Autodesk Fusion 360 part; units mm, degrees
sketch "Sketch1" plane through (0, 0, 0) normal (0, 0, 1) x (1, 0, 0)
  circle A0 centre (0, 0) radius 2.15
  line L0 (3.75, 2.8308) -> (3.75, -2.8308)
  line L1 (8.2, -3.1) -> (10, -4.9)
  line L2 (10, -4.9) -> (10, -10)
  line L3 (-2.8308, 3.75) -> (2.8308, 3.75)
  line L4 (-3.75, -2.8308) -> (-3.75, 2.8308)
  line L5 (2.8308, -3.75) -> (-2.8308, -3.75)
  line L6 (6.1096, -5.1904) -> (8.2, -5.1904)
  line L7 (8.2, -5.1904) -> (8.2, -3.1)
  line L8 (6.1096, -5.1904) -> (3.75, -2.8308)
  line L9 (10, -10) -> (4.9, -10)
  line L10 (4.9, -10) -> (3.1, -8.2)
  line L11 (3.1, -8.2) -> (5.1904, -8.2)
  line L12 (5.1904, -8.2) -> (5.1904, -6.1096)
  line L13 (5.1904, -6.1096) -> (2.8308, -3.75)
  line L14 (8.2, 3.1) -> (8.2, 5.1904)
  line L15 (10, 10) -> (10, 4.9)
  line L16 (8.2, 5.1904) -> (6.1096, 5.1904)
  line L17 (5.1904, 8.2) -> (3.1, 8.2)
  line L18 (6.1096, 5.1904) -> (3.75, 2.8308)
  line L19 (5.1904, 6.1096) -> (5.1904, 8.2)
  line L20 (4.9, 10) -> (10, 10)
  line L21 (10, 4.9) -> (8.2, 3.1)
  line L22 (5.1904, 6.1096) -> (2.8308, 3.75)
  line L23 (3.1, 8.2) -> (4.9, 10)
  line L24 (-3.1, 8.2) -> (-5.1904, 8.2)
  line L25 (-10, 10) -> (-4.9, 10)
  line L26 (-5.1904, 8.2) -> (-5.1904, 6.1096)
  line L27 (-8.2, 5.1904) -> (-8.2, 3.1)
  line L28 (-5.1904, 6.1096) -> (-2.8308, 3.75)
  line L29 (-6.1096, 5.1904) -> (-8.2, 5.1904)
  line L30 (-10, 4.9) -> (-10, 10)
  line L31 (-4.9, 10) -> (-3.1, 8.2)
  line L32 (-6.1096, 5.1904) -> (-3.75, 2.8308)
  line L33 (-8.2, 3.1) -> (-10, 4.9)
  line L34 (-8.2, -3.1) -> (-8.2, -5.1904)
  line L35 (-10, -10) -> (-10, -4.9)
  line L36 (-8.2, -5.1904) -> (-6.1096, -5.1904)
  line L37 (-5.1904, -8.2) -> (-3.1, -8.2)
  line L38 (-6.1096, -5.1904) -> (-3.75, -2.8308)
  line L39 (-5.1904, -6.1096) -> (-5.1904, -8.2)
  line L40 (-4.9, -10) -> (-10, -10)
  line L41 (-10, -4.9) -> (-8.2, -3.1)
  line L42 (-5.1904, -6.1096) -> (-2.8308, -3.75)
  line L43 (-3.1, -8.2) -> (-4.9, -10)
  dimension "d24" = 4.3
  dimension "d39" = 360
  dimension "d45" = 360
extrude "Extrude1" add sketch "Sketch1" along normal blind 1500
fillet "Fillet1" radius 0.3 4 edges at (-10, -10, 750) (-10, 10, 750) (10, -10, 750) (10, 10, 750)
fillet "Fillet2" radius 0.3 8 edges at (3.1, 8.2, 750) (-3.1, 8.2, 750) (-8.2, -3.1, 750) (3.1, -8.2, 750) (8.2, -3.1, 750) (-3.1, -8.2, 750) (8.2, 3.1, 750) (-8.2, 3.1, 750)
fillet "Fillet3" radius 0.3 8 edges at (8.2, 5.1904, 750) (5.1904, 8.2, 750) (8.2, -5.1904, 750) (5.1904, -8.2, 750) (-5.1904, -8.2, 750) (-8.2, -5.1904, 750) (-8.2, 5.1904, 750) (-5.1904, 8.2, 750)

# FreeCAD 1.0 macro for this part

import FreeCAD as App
import Part
import Sketcher

V = App.Vector


def edges_at(feature, points):
    """Names of the edges that pass closest to the given points."""
    edges = feature.Shape.Edges
    near = lambda p: min(range(len(edges)), key=lambda i: edges[i].distToShape(Part.Vertex(*p))[0])
    return sorted({f"Edge{near(p) + 1}" for p in points})

doc = App.newDocument("Part")
body = doc.addObject("PartDesign::Body", "Body")

# Sketch on XY plane
sketch1 = body.newObject("Sketcher::SketchObject", "Sketch")
sketch1.AttachmentSupport = (doc.getObject("XY_Plane"), [""])
sketch1.MapMode = "FlatFace"
sketch1.addGeometry([
    Part.LineSegment(V(3.8, -2.8, 0), V(3.8, 2.8, 0)),  # 0
    Part.LineSegment(V(3.8, 2.8, 0), V(6.1, 5.2, 0)),  # 1
    Part.LineSegment(V(6.1, 5.2, 0), V(8.2, 5.2, 0)),  # 2
    Part.LineSegment(V(8.2, 5.2, 0), V(8.2, 3.1, 0)),  # 3
    Part.LineSegment(V(8.2, 3.1, 0), V(10, 4.9, 0)),  # 4
    Part.LineSegment(V(10, 4.9, 0), V(10, 10, 0)),  # 5
    Part.LineSegment(V(10, 10, 0), V(4.9, 10, 0)),  # 6
    Part.LineSegment(V(4.9, 10, 0), V(3.1, 8.2, 0)),  # 7
    Part.LineSegment(V(3.1, 8.2, 0), V(5.2, 8.2, 0)),  # 8
    Part.LineSegment(V(5.2, 8.2, 0), V(5.2, 6.1, 0)),  # 9
    Part.LineSegment(V(5.2, 6.1, 0), V(2.8, 3.8, 0)),  # 10
    Part.LineSegment(V(2.8, 3.8, 0), V(-2.8, 3.8, 0)),  # 11
    Part.LineSegment(V(-2.8, 3.8, 0), V(-5.2, 6.1, 0)),  # 12
    Part.LineSegment(V(-5.2, 6.1, 0), V(-5.2, 8.2, 0)),  # 13
    Part.LineSegment(V(-5.2, 8.2, 0), V(-3.1, 8.2, 0)),  # 14
    Part.LineSegment(V(-3.1, 8.2, 0), V(-4.9, 10, 0)),  # 15
    Part.LineSegment(V(-4.9, 10, 0), V(-10, 10, 0)),  # 16
    Part.LineSegment(V(-10, 10, 0), V(-10, 4.9, 0)),  # 17
    Part.LineSegment(V(-10, 4.9, 0), V(-8.2, 3.1, 0)),  # 18
    Part.LineSegment(V(-8.2, 3.1, 0), V(-8.2, 5.2, 0)),  # 19
    Part.LineSegment(V(-8.2, 5.2, 0), V(-6.1, 5.2, 0)),  # 20
    Part.LineSegment(V(-6.1, 5.2, 0), V(-3.8, 2.8, 0)),  # 21
    Part.LineSegment(V(-3.8, 2.8, 0), V(-3.8, -2.8, 0)),  # 22
    Part.LineSegment(V(-3.8, -2.8, 0), V(-6.1, -5.2, 0)),  # 23
    Part.LineSegment(V(-6.1, -5.2, 0), V(-8.2, -5.2, 0)),  # 24
    Part.LineSegment(V(-8.2, -5.2, 0), V(-8.2, -3.1, 0)),  # 25
    Part.LineSegment(V(-8.2, -3.1, 0), V(-10, -4.9, 0)),  # 26
    Part.LineSegment(V(-10, -4.9, 0), V(-10, -10, 0)),  # 27
    Part.LineSegment(V(-10, -10, 0), V(-4.9, -10, 0)),  # 28
    Part.LineSegment(V(-4.9, -10, 0), V(-3.1, -8.2, 0)),  # 29
    Part.LineSegment(V(-3.1, -8.2, 0), V(-5.2, -8.2, 0)),  # 30
    Part.LineSegment(V(-5.2, -8.2, 0), V(-5.2, -6.1, 0)),  # 31
    Part.LineSegment(V(-5.2, -6.1, 0), V(-2.8, -3.8, 0)),  # 32
    Part.LineSegment(V(-2.8, -3.8, 0), V(2.8, -3.8, 0)),  # 33
    Part.LineSegment(V(2.8, -3.8, 0), V(5.2, -6.1, 0)),  # 34
    Part.LineSegment(V(5.2, -6.1, 0), V(5.2, -8.2, 0)),  # 35
    Part.LineSegment(V(5.2, -8.2, 0), V(3.1, -8.2, 0)),  # 36
    Part.LineSegment(V(3.1, -8.2, 0), V(4.9, -10, 0)),  # 37
    Part.LineSegment(V(4.9, -10, 0), V(10, -10, 0)),  # 38
    Part.LineSegment(V(10, -10, 0), V(10, -4.9, 0)),  # 39
    Part.LineSegment(V(10, -4.9, 0), V(8.2, -3.1, 0)),  # 40
    Part.LineSegment(V(8.2, -3.1, 0), V(8.2, -5.2, 0)),  # 41
    Part.LineSegment(V(8.2, -5.2, 0), V(6.1, -5.2, 0)),  # 42
    Part.LineSegment(V(6.1, -5.2, 0), V(3.8, -2.8, 0)),  # 43
    Part.Circle(V(0, 0, 0), V(0, 0, 1), 2.1),  # 44
], False)
sketch1.addConstraint([
    Sketcher.Constraint("Coincident", 0, 2, 1, 1),
    Sketcher.Constraint("Coincident", 1, 2, 2, 1),
    Sketcher.Constraint("Coincident", 2, 2, 3, 1),
    Sketcher.Constraint("Coincident", 3, 2, 4, 1),
    Sketcher.Constraint("Coincident", 4, 2, 5, 1),
    Sketcher.Constraint("Coincident", 5, 2, 6, 1),
    Sketcher.Constraint("Coincident", 6, 2, 7, 1),
    Sketcher.Constraint("Coincident", 7, 2, 8, 1),
    Sketcher.Constraint("Coincident", 8, 2, 9, 1),
    Sketcher.Constraint("Coincident", 9, 2, 10, 1),
    Sketcher.Constraint("Coincident", 10, 2, 11, 1),
    Sketcher.Constraint("Coincident", 11, 2, 12, 1),
    Sketcher.Constraint("Coincident", 12, 2, 13, 1),
    Sketcher.Constraint("Coincident", 13, 2, 14, 1),
    Sketcher.Constraint("Coincident", 14, 2, 15, 1),
    Sketcher.Constraint("Coincident", 15, 2, 16, 1),
    Sketcher.Constraint("Coincident", 16, 2, 17, 1),
    Sketcher.Constraint("Coincident", 17, 2, 18, 1),
    Sketcher.Constraint("Coincident", 18, 2, 19, 1),
    Sketcher.Constraint("Coincident", 19, 2, 20, 1),
    Sketcher.Constraint("Coincident", 20, 2, 21, 1),
    Sketcher.Constraint("Coincident", 21, 2, 22, 1),
    Sketcher.Constraint("Coincident", 22, 2, 23, 1),
    Sketcher.Constraint("Coincident", 23, 2, 24, 1),
    Sketcher.Constraint("Coincident", 24, 2, 25, 1),
    Sketcher.Constraint("Coincident", 25, 2, 26, 1),
    Sketcher.Constraint("Coincident", 26, 2, 27, 1),
    Sketcher.Constraint("Coincident", 27, 2, 28, 1),
    Sketcher.Constraint("Coincident", 28, 2, 29, 1),
    Sketcher.Constraint("Coincident", 29, 2, 30, 1),
    Sketcher.Constraint("Coincident", 30, 2, 31, 1),
    Sketcher.Constraint("Coincident", 31, 2, 32, 1),
    Sketcher.Constraint("Coincident", 32, 2, 33, 1),
    Sketcher.Constraint("Coincident", 33, 2, 34, 1),
    Sketcher.Constraint("Coincident", 34, 2, 35, 1),
    Sketcher.Constraint("Coincident", 35, 2, 36, 1),
    Sketcher.Constraint("Coincident", 36, 2, 37, 1),
    Sketcher.Constraint("Coincident", 37, 2, 38, 1),
    Sketcher.Constraint("Coincident", 38, 2, 39, 1),
    Sketcher.Constraint("Coincident", 39, 2, 40, 1),
    Sketcher.Constraint("Coincident", 40, 2, 41, 1),
    Sketcher.Constraint("Coincident", 41, 2, 42, 1),
    Sketcher.Constraint("Coincident", 42, 2, 43, 1),
    Sketcher.Constraint("Coincident", 43, 2, 0, 1),
    Sketcher.Constraint("Vertical", 0),
    Sketcher.Constraint("Horizontal", 2),
    Sketcher.Constraint("Vertical", 3),
    Sketcher.Constraint("Vertical", 5),
    Sketcher.Constraint("Horizontal", 6),
    Sketcher.Constraint("Horizontal", 8),
    Sketcher.Constraint("Vertical", 9),
    Sketcher.Constraint("Horizontal", 11),
    Sketcher.Constraint("Vertical", 13),
    Sketcher.Constraint("Horizontal", 14),
    Sketcher.Constraint("Horizontal", 16),
    Sketcher.Constraint("Vertical", 17),
    Sketcher.Constraint("Vertical", 19),
    Sketcher.Constraint("Horizontal", 20),
    Sketcher.Constraint("Vertical", 22),
    Sketcher.Constraint("Horizontal", 24),
    Sketcher.Constraint("Vertical", 25),
    Sketcher.Constraint("Vertical", 27),
    Sketcher.Constraint("Horizontal", 28),
    Sketcher.Constraint("Horizontal", 30),
    Sketcher.Constraint("Vertical", 31),
    Sketcher.Constraint("Horizontal", 33),
    Sketcher.Constraint("Vertical", 35),
    Sketcher.Constraint("Horizontal", 36),
    Sketcher.Constraint("Horizontal", 38),
    Sketcher.Constraint("Vertical", 39),
    Sketcher.Constraint("Vertical", 41),
    Sketcher.Constraint("Horizontal", 42),
    Sketcher.Constraint("Coincident", 44, 3, -1, 1),
    Sketcher.Constraint("Symmetric", 0, 2, 22, 2, -1, 1),
    Sketcher.Constraint("Symmetric", 1, 2, 23, 2, -1, 1),
    Sketcher.Constraint("Symmetric", 3, 2, 25, 2, -1, 1),
    Sketcher.Constraint("Symmetric", 4, 2, 26, 2, -1, 1),
    Sketcher.Constraint("Symmetric", 6, 2, 28, 2, -1, 1),
    Sketcher.Constraint("Symmetric", 7, 2, 29, 2, -1, 1),
    Sketcher.Constraint("Symmetric", 9, 2, 31, 2, -1, 1),
    Sketcher.Constraint("Symmetric", 10, 2, 32, 2, -1, 1),
    Sketcher.Constraint("Symmetric", 12, 2, 34, 2, -1, 1),
    Sketcher.Constraint("Symmetric", 14, 2, 36, 2, -1, 1),
    Sketcher.Constraint("Symmetric", 15, 2, 37, 2, -1, 1),
    Sketcher.Constraint("Symmetric", 17, 2, 39, 2, -1, 1),
    Sketcher.Constraint("Symmetric", 18, 2, 40, 2, -1, 1),
    Sketcher.Constraint("Symmetric", 20, 2, 42, 2, -1, 1),
    Sketcher.Constraint("Symmetric", 9, 2, 12, 2, -2),
    Sketcher.Constraint("Symmetric", 7, 2, 14, 2, -2),
    Sketcher.Constraint("Symmetric", 6, 2, 15, 2, -2),
    Sketcher.Constraint("Symmetric", 4, 2, 17, 2, -2),
    Sketcher.Constraint("Symmetric", 3, 2, 18, 2, -2),
    Sketcher.Constraint("Symmetric", 1, 2, 20, 2, -2),
    Sketcher.Constraint("Parallel", 1, 4),
    Sketcher.Constraint("Parallel", 4, 7),
    Sketcher.Constraint("Parallel", 7, 10),
    Sketcher.Constraint("Perpendicular", 10, 12),
    Sketcher.Constraint("Parallel", 12, 15),
    Sketcher.Constraint("Parallel", 18, 21),
    Sketcher.Constraint("Perpendicular", 32, 34),
    Sketcher.Constraint("Parallel", 40, 43),
    Sketcher.Constraint("Equal", 2, 8),
    Sketcher.Constraint("Equal", 33, 0),
    Sketcher.Constraint("Equal", 42, 3),
    Sketcher.Constraint("Equal", 38, 5),
    Sketcher.Constraint("Equal", 3, 9),
    Sketcher.Constraint("Equal", 4, 7),
    Sketcher.Constraint("Equal", 1, 10),
    Sketcher.Constraint("Diameter", 44, 4.3),
    Sketcher.Constraint("DistanceX", 6, 2, 6, 1, 5.1),
    Sketcher.Constraint("DistanceX", -1, 1, 4, 2, 10.0),
    Sketcher.Constraint("DistanceX", 15, 2, 7, 2, 8.0),
    Sketcher.Constraint("DistanceX", -1, 1, 0, 2, 3.75),
    Sketcher.Constraint("Distance", 1, 3.337),
])
pad1 = body.newObject("PartDesign::Pad", "Pad")
pad1.Profile = sketch1
pad1.Length = 1500
doc.recompute()

fillet = body.newObject("PartDesign::Fillet", "Fillet")
fillet.Base = (pad1, edges_at(pad1, [
    (-10, -10, 750),
    (-10, 10, 750),
    (10, -10, 750),
    (10, 10, 750),
]))
fillet.Radius = 0.3
doc.recompute()

fillet2 = body.newObject("PartDesign::Fillet", "Fillet001")
fillet2.Base = (fillet, edges_at(fillet, [
    (3.1, 8.2, 750),
    (-3.1, 8.2, 750),
    (-8.2, -3.1, 750),
    (3.1, -8.2, 750),
    (8.2, -3.1, 750),
    (-3.1, -8.2, 750),
    (8.2, 3.1, 750),
    (-8.2, 3.1, 750),
]))
fillet2.Radius = 0.3
doc.recompute()

fillet3 = body.newObject("PartDesign::Fillet", "Fillet002")
fillet3.Base = (fillet2, edges_at(fillet2, [
    (8.2, 5.19, 750),
    (5.19, 8.2, 750),
    (8.2, -5.19, 750),
    (5.19, -8.2, 750),
    (-5.19, -8.2, 750),
    (-8.2, -5.19, 750),
    (-8.2, 5.19, 750),
    (-5.19, 8.2, 750),
]))
fillet3.Radius = 0.3

doc.recompute()
